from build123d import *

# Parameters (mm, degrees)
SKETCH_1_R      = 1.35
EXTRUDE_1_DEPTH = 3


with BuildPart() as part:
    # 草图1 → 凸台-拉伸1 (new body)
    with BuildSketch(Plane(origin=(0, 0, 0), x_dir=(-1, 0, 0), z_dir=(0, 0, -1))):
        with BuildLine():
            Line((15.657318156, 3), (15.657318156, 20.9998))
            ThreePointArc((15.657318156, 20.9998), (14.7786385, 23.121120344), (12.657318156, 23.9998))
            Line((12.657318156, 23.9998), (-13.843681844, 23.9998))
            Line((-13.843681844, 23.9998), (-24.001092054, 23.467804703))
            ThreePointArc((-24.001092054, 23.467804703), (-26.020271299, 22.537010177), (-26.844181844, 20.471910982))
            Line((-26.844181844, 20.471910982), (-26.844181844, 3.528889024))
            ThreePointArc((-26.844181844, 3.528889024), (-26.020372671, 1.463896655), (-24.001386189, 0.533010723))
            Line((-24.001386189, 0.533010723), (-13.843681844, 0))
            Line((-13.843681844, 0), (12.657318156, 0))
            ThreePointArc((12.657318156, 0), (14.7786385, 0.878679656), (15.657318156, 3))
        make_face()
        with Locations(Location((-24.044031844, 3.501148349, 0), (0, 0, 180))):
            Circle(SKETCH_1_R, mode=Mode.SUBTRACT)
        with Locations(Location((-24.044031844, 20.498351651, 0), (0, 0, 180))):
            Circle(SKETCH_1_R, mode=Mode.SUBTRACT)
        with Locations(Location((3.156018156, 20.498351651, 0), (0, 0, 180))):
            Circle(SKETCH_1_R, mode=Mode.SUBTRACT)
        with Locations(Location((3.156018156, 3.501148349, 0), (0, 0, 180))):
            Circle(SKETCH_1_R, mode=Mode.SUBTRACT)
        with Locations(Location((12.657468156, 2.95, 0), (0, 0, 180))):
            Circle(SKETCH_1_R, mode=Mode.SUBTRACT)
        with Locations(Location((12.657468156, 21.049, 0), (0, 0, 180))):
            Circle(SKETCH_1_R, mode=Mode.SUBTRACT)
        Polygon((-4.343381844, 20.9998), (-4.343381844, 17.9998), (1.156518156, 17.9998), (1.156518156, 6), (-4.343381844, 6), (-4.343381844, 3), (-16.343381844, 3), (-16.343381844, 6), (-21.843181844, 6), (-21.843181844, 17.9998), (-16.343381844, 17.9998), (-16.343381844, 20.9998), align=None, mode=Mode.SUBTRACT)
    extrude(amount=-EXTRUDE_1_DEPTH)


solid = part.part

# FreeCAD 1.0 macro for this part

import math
import FreeCAD as App
import Part
import Sketcher

V = App.Vector

doc = App.newDocument("Part")
params = doc.addObject("Spreadsheet::Sheet", "Params")
for row, (alias, value) in enumerate([
    ("sketch1_radius", "3 mm"),
    ("sketch1_radius2", "3 mm"),
    ("sketch1_radius3", "3 mm"),
    ("sketch1_radius4", "3 mm"),
    ("sketch1_diameter", "2.7 mm"),
    ("pad1_length", "3 mm"),
], start=1):
    params.set(f"A{row}", alias)
    params.set(f"B{row}", "=" + value)
    params.setAlias(f"B{row}", alias)

body = doc.addObject("PartDesign::Body", "Body")

sketch1 = body.newObject("Sketcher::SketchObject", "Sketch")
sketch1.AttachmentSupport = (doc.getObject("XY_Plane"), [""])
sketch1.MapMode = "FlatFace"
sketch1.addGeometry(Part.LineSegment(V(-15.657318, 3, 0), V(-15.657318, 20.9998, 0)), False)
sketch1.addGeometry(Part.ArcOfCircle(Part.Circle(V(-12.657318, 20.9998, 0), V(0, 0, 1), 3), math.radians(90), math.radians(180)), False)
sketch1.addGeometry(Part.LineSegment(V(-12.657318, 23.9998, 0), V(13.843682, 23.9998, 0)), False)
sketch1.addGeometry(Part.LineSegment(V(13.843682, 23.9998, 0), V(24.001092, 23.467805, 0)), False)
sketch1.addGeometry(Part.ArcOfCircle(Part.Circle(V(23.844182, 20.471911, 0), V(0, 0, 1), 3), math.radians(0), math.radians(87.001868)), False)
sketch1.addGeometry(Part.LineSegment(V(26.844182, 20.471911, 0), V(26.844182, 3.528889, 0)), False)
sketch1.addGeometry(Part.ArcOfCircle(Part.Circle(V(23.844182, 3.528889, 0), V(0, 0, 1), 3), math.radians(-86.996242), math.radians(0)), False)
sketch1.addGeometry(Part.LineSegment(V(24.001386, 0.533011, 0), V(13.843682, 0, 0)), False)
sketch1.addGeometry(Part.LineSegment(V(13.843682, 0, 0), V(-12.657318, 0, 0)), False)
sketch1.addGeometry(Part.ArcOfCircle(Part.Circle(V(-12.657318, 3, 0), V(0, 0, 1), 3), math.radians(180), math.radians(270)), False)
sketch1.addGeometry(Part.Circle(V(24.044032, 3.501148, 0), V(0, 0, 1), 1.35), False)
sketch1.addGeometry(Part.Circle(V(-3.156018, 3.501148, 0), V(0, 0, 1), 1.35), False)
sketch1.addGeometry(Part.Circle(V(-12.657468, 2.95, 0), V(0, 0, 1), 1.35), False)
sketch1.addGeometry(Part.LineSegment(V(16.343382, 20.9998, 0), V(4.343382, 20.9998, 0)), False)
sketch1.addGeometry(Part.LineSegment(V(4.343382, 20.9998, 0), V(4.343382, 17.9998, 0)), False)
sketch1.addGeometry(Part.LineSegment(V(4.343382, 17.9998, 0), V(-1.156518, 17.9998, 0)), False)
sketch1.addGeometry(Part.LineSegment(V(-1.156518, 17.9998, 0), V(-1.156518, 6, 0)), False)
sketch1.addGeometry(Part.LineSegment(V(-1.156518, 6, 0), V(4.343382, 6, 0)), False)
sketch1.addGeometry(Part.LineSegment(V(4.343382, 6, 0), V(4.343382, 3, 0)), False)
sketch1.addGeometry(Part.LineSegment(V(4.343382, 3, 0), V(16.343382, 3, 0)), False)
sketch1.addGeometry(Part.LineSegment(V(16.343382, 3, 0), V(16.343382, 6, 0)), False)
sketch1.addGeometry(Part.LineSegment(V(16.343382, 6, 0), V(21.843182, 6, 0)), False)
sketch1.addGeometry(Part.LineSegment(V(21.843182, 6, 0), V(21.843182, 17.9998, 0)), False)
sketch1.addGeometry(Part.LineSegment(V(21.843182, 17.9998, 0), V(16.343382, 17.9998, 0)), False)
sketch1.addGeometry(Part.LineSegment(V(16.343382, 17.9998, 0), V(16.343382, 20.9998, 0)), False)
sketch1.addGeometry(Part.Circle(V(24.044032, 20.498352, 0), V(0, 0, 1), 1.35), False)
sketch1.addGeometry(Part.Circle(V(-3.156018, 20.498352, 0), V(0, 0, 1), 1.35), False)
sketch1.addGeometry(Part.Circle(V(-12.657468, 21.049, 0), V(0, 0, 1), 1.35), False)
sketch1.addConstraint(Sketcher.Constraint("Coincident", 0, 2, 1, 2))
sketch1.addConstraint(Sketcher.Constraint("Coincident", 1, 1, 2, 1))
sketch1.addConstraint(Sketcher.Constraint("Coincident", 2, 2, 3, 1))
sketch1.addConstraint(Sketcher.Constraint("Coincident", 3, 2, 4, 2))
sketch1.addConstraint(Sketcher.Constraint("Coincident", 4, 1, 5, 1))
sketch1.addConstraint(Sketcher.Constraint("Coincident", 5, 2, 6, 2))
sketch1.addConstraint(Sketcher.Constraint("Coincident", 6, 1, 7, 1))
sketch1.addConstraint(Sketcher.Constraint("Coincident", 7, 2, 8, 1))
sketch1.addConstraint(Sketcher.Constraint("Coincident", 8, 2, 9, 2))
sketch1.addConstraint(Sketcher.Constraint("Coincident", 9, 1, 0, 1))
sketch1.addConstraint(Sketcher.Constraint("Coincident", 13, 2, 14, 1))
sketch1.addConstraint(Sketcher.Constraint("Coincident", 14, 2, 15, 1))
sketch1.addConstraint(Sketcher.Constraint("Coincident", 15, 2, 16, 1))
sketch1.addConstraint(Sketcher.Constraint("Coincident", 16, 2, 17, 1))
sketch1.addConstraint(Sketcher.Constraint("Coincident", 17, 2, 18, 1))
sketch1.addConstraint(Sketcher.Constraint("Coincident", 18, 2, 19, 1))
sketch1.addConstraint(Sketcher.Constraint("Coincident", 19, 2, 20, 1))
sketch1.addConstraint(Sketcher.Constraint("Coincident", 20, 2, 21, 1))
sketch1.addConstraint(Sketcher.Constraint("Coincident", 21, 2, 22, 1))
sketch1.addConstraint(Sketcher.Constraint("Coincident", 22, 2, 23, 1))
sketch1.addConstraint(Sketcher.Constraint("Coincident", 23, 2, 24, 1))
sketch1.addConstraint(Sketcher.Constraint("Coincident", 24, 2, 13, 1))
sketch1.addConstraint(Sketcher.Constraint("Vertical", 0))
sketch1.addConstraint(Sketcher.Constraint("Horizontal", 2))
sketch1.addConstraint(Sketcher.Constraint("Vertical", 5))
sketch1.addConstraint(Sketcher.Constraint("Horizontal", 8))
sketch1.addConstraint(Sketcher.Constraint("Horizontal", 13))
sketch1.addConstraint(Sketcher.Constraint("Vertical", 14))
sketch1.addConstraint(Sketcher.Constraint("Horizontal", 15))
sketch1.addConstraint(Sketcher.Constraint("Vertical", 16))
sketch1.addConstraint(Sketcher.Constraint("Horizontal", 17))
sketch1.addConstraint(Sketcher.Constraint("Vertical", 18))
sketch1.addConstraint(Sketcher.Constraint("Horizontal", 19))
sketch1.addConstraint(Sketcher.Constraint("Vertical", 20))
sketch1.addConstraint(Sketcher.Constraint("Horizontal", 21))
sketch1.addConstraint(Sketcher.Constraint("Vertical", 22))
sketch1.addConstraint(Sketcher.Constraint("Horizontal", 23))
sketch1.addConstraint(Sketcher.Constraint("Vertical", 24))
sketch1.addConstraint(Sketcher.Constraint("PointOnObject", 7, 2, -1))
sketch1.addConstraint(Sketcher.Constraint("Radius", 1, 3.0))
sketch1.addConstraint(Sketcher.Constraint("Radius", 4, 3.0))
sketch1.addConstraint(Sketcher.Constraint("Radius", 6, 3.0))
sketch1.addConstraint(Sketcher.Constraint("Radius", 9, 3.0))
sketch1.addConstraint(Sketcher.Constraint("Diameter", 10, 2.7))
sketch1.addConstraint(Sketcher.Constraint("Diameter", 11, 2.7))
sketch1.addConstraint(Sketcher.Constraint("Diameter", 12, 2.7))
sketch1.addConstraint(Sketcher.Constraint("Diameter", 25, 2.7))
sketch1.addConstraint(Sketcher.Constraint("Diameter", 26, 2.7))
sketch1.addConstraint(Sketcher.Constraint("Diameter", 27, 2.7))
sketch1.addConstraint(Sketcher.Constraint("DistanceX", 13, 2, 13, 1, 12.0))
sketch1.addConstraint(Sketcher.Constraint("DistanceX", 19, 1, 19, 2, 12.0))
sketch1.addConstraint(Sketcher.Constraint("DistanceY", 14, 2, 14, 1, 3.0))
sketch1.addConstraint(Sketcher.Constraint("DistanceY", 18, 2, 18, 1, 3.0))
sketch1.addConstraint(Sketcher.Constraint("DistanceY", 20, 1, 20, 2, 3.0))
sketch1.addConstraint(Sketcher.Constraint("DistanceY", 24, 1, 24, 2, 3.0))
sketch1.addConstraint(Sketcher.Constraint("DistanceY", -1, 1, 9, 1, 3.0))
sketch1.addConstraint(Sketcher.Constraint("DistanceY", -1, 1, 16, 2, 6.0))
sketch1.addConstraint(Sketcher.Constraint("DistanceX", 0, 2, 1, 1, 3.0))
sketch1.addConstraint(Sketcher.Constraint("DistanceY", 0, 2, 1, 1, 3.0))
sketch1.addConstraint(Sketcher.Constraint("DistanceX", 9, 1, 8, 2, 3.0))
sketch1.addConstraint(Sketcher.Constraint("DistanceY", 13, 2, 2, 2, 3.0))
sketch1.addConstraint(Sketcher.Constraint("DistanceX", 2, 1, 2, 2, 26.501))
sketch1.addConstraint(Sketcher.Constraint("DistanceX", 8, 2, 8, 1, 26.501))
sketch1.addConstraint(Sketcher.Constraint("DistanceY", -1, 1, 12, 3, 2.95))
sketch1.addConstraint(Sketcher.Constraint("DistanceX", 15, 2, 15, 1, 5.4999))
sketch1.addConstraint(Sketcher.Constraint("DistanceX", 17, 1, 17, 2, 5.4999))
sketch1.addConstraint(Sketcher.Constraint("DistanceX", 21, 1, 21, 2, 5.4998))
sketch1.addConstraint(Sketcher.Constraint("DistanceY", 0, 1, 0, 2, 17.9998))
sketch1.addConstraint(Sketcher.Constraint("DistanceY", -1, 1, 27, 3, 21.049))
sketch1.addConstraint(Sketcher.Constraint("DistanceX", 21, 2, 6, 3, 2.001))
sketch1.addConstraint(Sketcher.Constraint("DistanceY", 5, 2, 5, 1, 16.943022))
sketch1.addConstraint(Sketcher.Constraint("DistanceX", 1, 3, 4, 3, 36.5015))
sketch1.addConstraint(Sketcher.Constraint("DistanceX", 9, 3, 11, 3, 9.5013))
sketch1.addConstraint(Sketcher.Constraint("DistanceX", 12, 3, 10, 3, 36.7015))
sketch1.addConstraint(Sketcher.Constraint("DistanceX", 1, 3, 26, 3, 9.5013))
sketch1.addConstraint(Sketcher.Constraint("DistanceY", 6, 1, 4, 3, 19.9389))
sketch1.addConstraint(Sketcher.Constraint("Distance", 7, 10.171679))
sketch1.addConstraint(Sketcher.Constraint("DistanceX", 1, 3, -1, 1, 12.657318))
sketch1.addConstraint(Sketcher.Constraint("DistanceY", -1, 1, 4, 3, 20.471911))
sketch1.addConstraint(Sketcher.Constraint("DistanceX", -1, 1, 10, 3, 24.044032))
sketch1.addConstraint(Sketcher.Constraint("DistanceY", -1, 1, 10, 3, 3.501148))
sketch1.addConstraint(Sketcher.Constraint("DistanceY", -1, 1, 11, 3, 3.501148))
sketch1.addConstraint(Sketcher.Constraint("DistanceX", -1, 1, 25, 3, 24.044032))
sketch1.addConstraint(Sketcher.Constraint("DistanceY", -1, 1, 25, 3, 20.498352))
sketch1.addConstraint(Sketcher.Constraint("DistanceY", -1, 1, 26, 3, 20.498352))
sketch1.addConstraint(Sketcher.Constraint("DistanceX", 27, 3, -1, 1, 12.657468))
sketch1.addConstraint(Sketcher.Constraint("DistanceY", -1, 1, 4, 1, 20.471911))
sketch1.addConstraint(Sketcher.Constraint("DistanceX", 3, 2, 25, 3, 0.04294))
sketch1.setExpression("Constraints[39]", "Params.sketch1_radius")
sketch1.setExpression("Constraints[40]", "Params.sketch1_radius2")
sketch1.setExpression("Constraints[41]", "Params.sketch1_radius3")
sketch1.setExpression("Constraints[42]", "Params.sketch1_radius4")
sketch1.setExpression("Constraints[43]", "Params.sketch1_diameter")
pad1 = body.newObject("PartDesign::Pad", "Pad")
pad1.Profile = sketch1
pad1.setExpression("Length", "Params.pad1_length")

doc.recompute()
